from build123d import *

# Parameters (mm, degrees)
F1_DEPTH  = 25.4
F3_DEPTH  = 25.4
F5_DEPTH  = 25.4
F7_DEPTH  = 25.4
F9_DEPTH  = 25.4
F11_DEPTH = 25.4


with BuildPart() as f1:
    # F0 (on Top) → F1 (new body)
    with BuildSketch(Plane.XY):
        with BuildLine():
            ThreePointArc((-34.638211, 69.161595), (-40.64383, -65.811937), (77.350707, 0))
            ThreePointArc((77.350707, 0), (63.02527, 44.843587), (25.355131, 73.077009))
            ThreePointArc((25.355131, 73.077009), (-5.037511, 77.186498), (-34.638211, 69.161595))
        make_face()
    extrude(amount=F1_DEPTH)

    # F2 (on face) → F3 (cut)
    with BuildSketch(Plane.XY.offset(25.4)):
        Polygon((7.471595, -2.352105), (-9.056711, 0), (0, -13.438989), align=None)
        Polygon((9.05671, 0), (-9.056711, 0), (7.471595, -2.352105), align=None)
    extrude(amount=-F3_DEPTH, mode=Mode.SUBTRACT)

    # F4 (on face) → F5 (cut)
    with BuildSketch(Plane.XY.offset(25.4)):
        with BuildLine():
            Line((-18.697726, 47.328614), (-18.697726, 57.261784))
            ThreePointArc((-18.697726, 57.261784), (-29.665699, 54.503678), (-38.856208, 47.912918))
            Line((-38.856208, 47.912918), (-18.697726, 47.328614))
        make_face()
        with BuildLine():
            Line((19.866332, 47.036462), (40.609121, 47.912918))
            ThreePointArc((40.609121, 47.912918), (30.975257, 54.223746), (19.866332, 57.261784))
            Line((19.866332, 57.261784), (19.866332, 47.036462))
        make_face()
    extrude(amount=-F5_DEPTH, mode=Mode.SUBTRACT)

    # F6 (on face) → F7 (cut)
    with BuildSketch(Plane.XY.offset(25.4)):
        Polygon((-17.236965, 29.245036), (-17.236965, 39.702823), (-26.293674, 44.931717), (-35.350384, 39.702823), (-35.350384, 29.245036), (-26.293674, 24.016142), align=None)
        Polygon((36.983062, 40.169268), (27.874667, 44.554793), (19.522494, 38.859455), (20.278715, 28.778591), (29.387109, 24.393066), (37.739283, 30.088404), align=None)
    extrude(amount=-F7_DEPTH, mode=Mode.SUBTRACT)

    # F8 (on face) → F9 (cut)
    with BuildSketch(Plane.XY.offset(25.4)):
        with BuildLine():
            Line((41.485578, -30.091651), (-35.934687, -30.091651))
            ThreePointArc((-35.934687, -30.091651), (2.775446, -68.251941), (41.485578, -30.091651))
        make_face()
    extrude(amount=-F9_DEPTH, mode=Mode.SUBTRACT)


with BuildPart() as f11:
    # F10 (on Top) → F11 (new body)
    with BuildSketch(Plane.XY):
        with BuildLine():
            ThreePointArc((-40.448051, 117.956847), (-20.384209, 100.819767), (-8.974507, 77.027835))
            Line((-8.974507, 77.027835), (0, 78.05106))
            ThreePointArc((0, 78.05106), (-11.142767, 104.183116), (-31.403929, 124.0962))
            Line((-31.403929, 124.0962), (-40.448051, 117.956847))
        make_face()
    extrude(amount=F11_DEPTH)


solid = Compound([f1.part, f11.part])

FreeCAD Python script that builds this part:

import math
import FreeCAD as App
import Part
import Sketcher

V = App.Vector
Q = App.Units.Quantity

doc = App.newDocument("Part")
params = doc.addObject("Spreadsheet::Sheet", "Params")
for row, (alias, value) in enumerate([
    ("pad1_length", "1 in"),
    ("pocket1_length", "1 in"),
    ("pocket2_length", "1 in"),
    ("pocket3_length", "1 in"),
    ("pocket4_length", "1 in"),
    ("pad2_length", "1 in"),
], start=1):
    params.set(f"A{row}", alias)
    params.set(f"B{row}", "=" + value)
    params.setAlias(f"B{row}", alias)

body = doc.addObject("PartDesign::Body", "Body")

# Sketch on XY plane
sketch1 = doc.addObject("Sketcher::SketchObject", "Sketch")
body.addObject(sketch1)
sketch1.AttachmentSupport = (doc.XY_Plane, [""])
sketch1.MapMode = "FlatFace"
sketch1.addGeometry([
    Part.ArcOfCircle(Part.Circle(V(0, 0, 0), V(0, 0, 1), 77), math.radians(117), math.radians(360)),
    Part.ArcOfCircle(Part.Circle(V(0, 0, 0), V(0, 0, 1), 77), math.radians(0), math.radians(71)),
    Part.ArcOfCircle(Part.Circle(V(0, 0, 0), V(0, 0, 1), 77), math.radians(71), math.radians(117)),
], False)
sketch1.addConstraint([
    Sketcher.Constraint("Tangent", 0, 2, 1, 1),
    Sketcher.Constraint("Tangent", 1, 2, 2, 1),
    Sketcher.Constraint("Tangent", 2, 2, 0, 1),
    Sketcher.Constraint("Coincident", 0, 3, -1, 1),
    Sketcher.Constraint("PointOnObject", 0, 2, -1),
    Sketcher.Constraint("Radius", 2, 77.3507),
    Sketcher.Constraint("DistanceY", 2, 3, 1, 2, 73.077001),
    Sketcher.Constraint("DistanceX", 2, 2, -1, 1, 34.638211),
])
pad1 = doc.addObject("PartDesign::Pad", "Pad")
body.addObject(pad1)
pad1.Profile = sketch1
pad1.setExpression("Length", "Params.pad1_length")

# Sketch on XY plane
sketch2 = doc.addObject("Sketcher::SketchObject", "Sketch001")
body.addObject(sketch2)
sketch2.AttachmentSupport = (doc.XY_Plane, [""])
sketch2.MapMode = "FlatFace"
sketch2.AttachmentOffset = App.Placement(V(0, 0, 1 * 25.4), App.Rotation())
sketch2.addGeometry([
    Part.LineSegment(V(-9.1, 0, 0), V(0, -13.4, 0)),
    Part.LineSegment(V(0, -13.4, 0), V(7.5, -2.4, 0)),
    Part.LineSegment(V(7.5, -2.4, 0), V(9.1, 0, 0)),
    Part.LineSegment(V(9.1, 0, 0), V(-9.1, 0, 0)),
], False)
sketch2.addConstraint([
    Sketcher.Constraint("Coincident", 0, 2, 1, 1),
    Sketcher.Constraint("Coincident", 1, 2, 2, 1),
    Sketcher.Constraint("Coincident", 2, 2, 3, 1),
    Sketcher.Constraint("Coincident", 3, 2, 0, 1),
    Sketcher.Constraint("Horizontal", 3),
    Sketcher.Constraint("Symmetric", 2, 2, 3, 2, -1, 1),
    Sketcher.Constraint("PointOnObject", 0, 2, -2),
    Sketcher.Constraint("Parallel", 1, 2),
    Sketcher.Constraint("DistanceX", 3, 2, 3, 1, 18.113421),
    Sketcher.Constraint("Distance", 2, 2.836369),
    Sketcher.Constraint("DistanceY", 0, 2, -1, 1, 13.438989),
])
pocket1 = doc.addObject("PartDesign::Pocket", "Pocket")
body.addObject(pocket1)
pocket1.Profile = sketch2
pocket1.setExpression("Length", "Params.pocket1_length")

# Sketch on XY plane
sketch3 = doc.addObject("Sketcher::SketchObject", "Sketch002")
body.addObject(sketch3)
sketch3.AttachmentSupport = (doc.XY_Plane, [""])
sketch3.MapMode = "FlatFace"
sketch3.AttachmentOffset = App.Placement(V(0, 0, 1 * 25.4), App.Rotation())
sketch3.addGeometry([
    Part.LineSegment(V(-19, 47, 0), V(-19, 57, 0)),  # 0
    Part.ArcOfCircle(Part.Circle(V(-17, 27, 0), V(0, 0, 1), 30), math.radians(93), math.radians(136)),  # 1
    Part.LineSegment(V(-39, 48, 0), V(-19, 47, 0)),  # 2
    Part.LineSegment(V(20, 47, 0), V(41, 48, 0)),  # 3
    Part.ArcOfCircle(Part.Circle(V(16, 21, 0), V(0, 0, 1), 37), math.radians(48), math.radians(84)),  # 4
    Part.LineSegment(V(20, 57, 0), V(20, 47, 0)),  # 5
], False)
sketch3.addConstraint([
    Sketcher.Constraint("Coincident", 0, 2, 1, 1),
    Sketcher.Constraint("Coincident", 1, 2, 2, 1),
    Sketcher.Constraint("Coincident", 2, 2, 0, 1),
    Sketcher.Constraint("Coincident", 3, 2, 4, 1),
    Sketcher.Constraint("Coincident", 4, 2, 5, 1),
    Sketcher.Constraint("Coincident", 5, 2, 3, 1),
    Sketcher.Constraint("Vertical", 0),
    Sketcher.Constraint("Vertical", 5),
    Sketcher.Constraint("Horizontal", 1, 2, 3, 2),
    Sketcher.Constraint("Horizontal", 0, 2, 4, 2),
    Sketcher.Constraint("Radius", 1, 30.27474),
    Sketcher.Constraint("Radius", 4, 36.948122),
    Sketcher.Constraint("DistanceX", 4, 3, 3, 2, Q("0.9769999 in")),
    Sketcher.Constraint("DistanceY", 0, 1, 0, 2, 9.93317),
    Sketcher.Constraint("DistanceY", 5, 2, 5, 1, 10.225322),
    Sketcher.Constraint("Distance", 2, 20.166948),
    Sketcher.Constraint("DistanceX", -1, 1, 3, 2, 40.609121),
    Sketcher.Constraint("DistanceX", -1, 1, 4, 2, 19.866332),
    Sketcher.Constraint("DistanceX", 0, 2, 4, 3, 34.49105),
    Sketcher.Constraint("DistanceY", -1, 1, 1, 3, 27.038792),
])
pocket2 = doc.addObject("PartDesign::Pocket", "Pocket001")
body.addObject(pocket2)
pocket2.Profile = sketch3
pocket2.setExpression("Length", "Params.pocket2_length")

# Sketch on XY plane
sketch4 = doc.addObject("Sketcher::SketchObject", "Sketch003")
body.addObject(sketch4)
sketch4.AttachmentSupport = (doc.XY_Plane, [""])
sketch4.MapMode = "FlatFace"
sketch4.AttachmentOffset = App.Placement(V(0, 0, 1 * 25.4), App.Rotation())
sketch4.addGeometry([
    Part.LineSegment(V(-17, 29, 0), V(-17, 40, 0)),  # 0
    Part.LineSegment(V(-17, 40, 0), V(-26, 45, 0)),  # 1
    Part.LineSegment(V(-26, 45, 0), V(-35, 40, 0)),  # 2
    Part.LineSegment(V(-35, 40, 0), V(-35, 29, 0)),  # 3
    Part.LineSegment(V(-35, 29, 0), V(-26, 24, 0)),  # 4
    Part.LineSegment(V(-26, 24, 0), V(-17, 29, 0)),  # 5
    Part.LineSegment(V(37, 40, 0), V(28, 45, 0)),  # 6
    Part.LineSegment(V(28, 45, 0), V(20, 39, 0)),  # 7
    Part.LineSegment(V(20, 39, 0), V(20, 29, 0)),  # 8
    Part.LineSegment(V(20, 29, 0), V(29, 24, 0)),  # 9
    Part.LineSegment(V(29, 24, 0), V(38, 30, 0)),  # 10
    Part.LineSegment(V(38, 30, 0), V(37, 40, 0)),  # 11
], False)
sketch4.addConstraint([
    Sketcher.Constraint("Coincident", 0, 2, 1, 1),
    Sketcher.Constraint("Coincident", 1, 2, 2, 1),
    Sketcher.Constraint("Coincident", 2, 2, 3, 1),
    Sketcher.Constraint("Coincident", 3, 2, 4, 1),
    Sketcher.Constraint("Coincident", 4, 2, 5, 1),
    Sketcher.Constraint("Coincident", 5, 2, 0, 1),
    Sketcher.Constraint("Coincident", 6, 2, 7, 1),
    Sketcher.Constraint("Coincident", 7, 2, 8, 1),
    Sketcher.Constraint("Coincident", 8, 2, 9, 1),
    Sketcher.Constraint("Coincident", 9, 2, 10, 1),
    Sketcher.Constraint("Coincident", 10, 2, 11, 1),
    Sketcher.Constraint("Coincident", 11, 2, 6, 1),
    Sketcher.Constraint("Vertical", 0),
    Sketcher.Constraint("Vertical", 3),
    Sketcher.Constraint("Parallel", 1, 4),
    Sketcher.Constraint("Parallel", 2, 5),
    Sketcher.Constraint("Parallel", 6, 9),
    Sketcher.Constraint("Parallel", 7, 10),
    Sketcher.Constraint("Parallel", 8, 11),
    Sketcher.Constraint("Horizontal", 0, 2, 2, 2),
    Sketcher.Constraint("Horizontal", 3, 2, 5, 2),
    Sketcher.Constraint("Vertical", 1, 2, 4, 2),
    Sketcher.Constraint("Equal", 6, 7),
    Sketcher.Constraint("Equal", 7, 8),
    Sketcher.Constraint("Equal", 8, 9),
    Sketcher.Constraint("Angle", 1, Q("149.999997 deg")),
    Sketcher.Constraint("DistanceY", -1, 1, 7, 2, Q("1.5298998 in")),
    Sketcher.Constraint("DistanceY", 8, 2, 6, 2, 15.776202),
    Sketcher.Constraint("Distance", 6, 10.109188),
    Sketcher.Constraint("DistanceY", 0, 1, 0, 2, 10.457787),
    Sketcher.Constraint("DistanceY", -1, 1, 4, 2, 24.016142),
    Sketcher.Constraint("DistanceY", -1, 1, 8, 2, 28.778591),
    Sketcher.Constraint("DistanceX", -1, 1, 9, 2, 29.387109),
    Sketcher.Constraint("DistanceY", -1, 1, 11, 2, 40.169268),
    Sketcher.Constraint("DistanceX", 1, 2, 0, 2, 9.056709),
    Sketcher.Constraint("DistanceX", 1, 2, 6, 2, 54.168341),
])
pocket3 = doc.addObject("PartDesign::Pocket", "Pocket002")
body.addObject(pocket3)
pocket3.Profile = sketch4
pocket3.setExpression("Length", "Params.pocket3_length")

# Sketch on XY plane
sketch5 = doc.addObject("Sketcher::SketchObject", "Sketch004")
body.addObject(sketch5)
sketch5.AttachmentSupport = (doc.XY_Plane, [""])
sketch5.MapMode = "FlatFace"
sketch5.AttachmentOffset = App.Placement(V(0, 0, 1 * 25.4), App.Rotation())
sketch5.addGeometry([
    Part.LineSegment(V(41, -30, 0), V(-36, -30, 0)),
    Part.ArcOfCircle(Part.Circle(V(3, -30, 0), V(0, 0, 1), 39), math.radians(-179), math.radians(-1)),
], False)
sketch5.addConstraint([
    Sketcher.Constraint("Coincident", 0, 1, 1, 2),
    Sketcher.Constraint("Coincident", 1, 1, 0, 2),
    Sketcher.Constraint("Horizontal", 0),
    Sketcher.Constraint("Radius", 1, 38.714094),
    Sketcher.Constraint("DistanceX", 0, 2, 0, 1, 77.420265),
    Sketcher.Constraint("DistanceY", 0, 1, -1, 1, 30.091651),
    Sketcher.Constraint("DistanceX", -1, 1, 1, 3, 2.775446),
])
pocket4 = doc.addObject("PartDesign::Pocket", "Pocket003")
body.addObject(pocket4)
pocket4.Profile = sketch5
pocket4.setExpression("Length", "Params.pocket4_length")
body2 = doc.addObject("PartDesign::Body", "Body001")

# Sketch on XY plane
sketch6 = doc.addObject("Sketcher::SketchObject", "Sketch005")
body2.addObject(sketch6)
sketch6.AttachmentSupport = (doc.getObject("XY_Plane001"), [""])
sketch6.MapMode = "FlatFace"
sketch6.addGeometry([
    Part.ArcOfCircle(Part.Circle(V(-71, 62, 0), V(0, 0, 1), 64), math.radians(14), math.radians(61)),
    Part.LineSegment(V(-9, 77, 0), V(0, 78, 0)),
    Part.ArcOfCircle(Part.Circle(V(-72, 63, 0), V(0, 0, 1), 73), math.radians(12), math.radians(57)),
    Part.LineSegment(V(-31, 124, 0), V(-40, 118, 0)),
], False)
sketch6.addConstraint([
    Sketcher.Constraint("Coincident", 0, 1, 1, 1),
    Sketcher.Constraint("Coincident", 1, 2, 2, 1),
    Sketcher.Constraint("Coincident", 2, 2, 3, 1),
    Sketcher.Constraint("Coincident", 3, 2, 0, 2),
    Sketcher.Constraint("PointOnObject", 1, 2, -2),
    Sketcher.Constraint("Radius", 0, 63.775433),
    Sketcher.Constraint("Radius", 2, 73.120215),
    Sketcher.Constraint("DistanceX", 0, 3, -1, 1, 70.940302),
    Sketcher.Constraint("DistanceY", -1, 1, 0, 3, 61.943201),
    Sketcher.Constraint("DistanceY", -1, 1, 2, 2, 124.0962),
    Sketcher.Constraint("Distance", 1, 9.03265),
    Sketcher.Constraint("DistanceY", -1, 1, 1, 2, 78.05106),
    Sketcher.Constraint("DistanceX", 2, 2, -1, 1, 31.403929),
    Sketcher.Constraint("DistanceX", 3, 2, -1, 1, 40.448051),
])
pad2 = doc.addObject("PartDesign::Pad", "Pad001")
body2.addObject(pad2)
pad2.Profile = sketch6
pad2.setExpression("Length", "Params.pad2_length")

doc.recompute()
